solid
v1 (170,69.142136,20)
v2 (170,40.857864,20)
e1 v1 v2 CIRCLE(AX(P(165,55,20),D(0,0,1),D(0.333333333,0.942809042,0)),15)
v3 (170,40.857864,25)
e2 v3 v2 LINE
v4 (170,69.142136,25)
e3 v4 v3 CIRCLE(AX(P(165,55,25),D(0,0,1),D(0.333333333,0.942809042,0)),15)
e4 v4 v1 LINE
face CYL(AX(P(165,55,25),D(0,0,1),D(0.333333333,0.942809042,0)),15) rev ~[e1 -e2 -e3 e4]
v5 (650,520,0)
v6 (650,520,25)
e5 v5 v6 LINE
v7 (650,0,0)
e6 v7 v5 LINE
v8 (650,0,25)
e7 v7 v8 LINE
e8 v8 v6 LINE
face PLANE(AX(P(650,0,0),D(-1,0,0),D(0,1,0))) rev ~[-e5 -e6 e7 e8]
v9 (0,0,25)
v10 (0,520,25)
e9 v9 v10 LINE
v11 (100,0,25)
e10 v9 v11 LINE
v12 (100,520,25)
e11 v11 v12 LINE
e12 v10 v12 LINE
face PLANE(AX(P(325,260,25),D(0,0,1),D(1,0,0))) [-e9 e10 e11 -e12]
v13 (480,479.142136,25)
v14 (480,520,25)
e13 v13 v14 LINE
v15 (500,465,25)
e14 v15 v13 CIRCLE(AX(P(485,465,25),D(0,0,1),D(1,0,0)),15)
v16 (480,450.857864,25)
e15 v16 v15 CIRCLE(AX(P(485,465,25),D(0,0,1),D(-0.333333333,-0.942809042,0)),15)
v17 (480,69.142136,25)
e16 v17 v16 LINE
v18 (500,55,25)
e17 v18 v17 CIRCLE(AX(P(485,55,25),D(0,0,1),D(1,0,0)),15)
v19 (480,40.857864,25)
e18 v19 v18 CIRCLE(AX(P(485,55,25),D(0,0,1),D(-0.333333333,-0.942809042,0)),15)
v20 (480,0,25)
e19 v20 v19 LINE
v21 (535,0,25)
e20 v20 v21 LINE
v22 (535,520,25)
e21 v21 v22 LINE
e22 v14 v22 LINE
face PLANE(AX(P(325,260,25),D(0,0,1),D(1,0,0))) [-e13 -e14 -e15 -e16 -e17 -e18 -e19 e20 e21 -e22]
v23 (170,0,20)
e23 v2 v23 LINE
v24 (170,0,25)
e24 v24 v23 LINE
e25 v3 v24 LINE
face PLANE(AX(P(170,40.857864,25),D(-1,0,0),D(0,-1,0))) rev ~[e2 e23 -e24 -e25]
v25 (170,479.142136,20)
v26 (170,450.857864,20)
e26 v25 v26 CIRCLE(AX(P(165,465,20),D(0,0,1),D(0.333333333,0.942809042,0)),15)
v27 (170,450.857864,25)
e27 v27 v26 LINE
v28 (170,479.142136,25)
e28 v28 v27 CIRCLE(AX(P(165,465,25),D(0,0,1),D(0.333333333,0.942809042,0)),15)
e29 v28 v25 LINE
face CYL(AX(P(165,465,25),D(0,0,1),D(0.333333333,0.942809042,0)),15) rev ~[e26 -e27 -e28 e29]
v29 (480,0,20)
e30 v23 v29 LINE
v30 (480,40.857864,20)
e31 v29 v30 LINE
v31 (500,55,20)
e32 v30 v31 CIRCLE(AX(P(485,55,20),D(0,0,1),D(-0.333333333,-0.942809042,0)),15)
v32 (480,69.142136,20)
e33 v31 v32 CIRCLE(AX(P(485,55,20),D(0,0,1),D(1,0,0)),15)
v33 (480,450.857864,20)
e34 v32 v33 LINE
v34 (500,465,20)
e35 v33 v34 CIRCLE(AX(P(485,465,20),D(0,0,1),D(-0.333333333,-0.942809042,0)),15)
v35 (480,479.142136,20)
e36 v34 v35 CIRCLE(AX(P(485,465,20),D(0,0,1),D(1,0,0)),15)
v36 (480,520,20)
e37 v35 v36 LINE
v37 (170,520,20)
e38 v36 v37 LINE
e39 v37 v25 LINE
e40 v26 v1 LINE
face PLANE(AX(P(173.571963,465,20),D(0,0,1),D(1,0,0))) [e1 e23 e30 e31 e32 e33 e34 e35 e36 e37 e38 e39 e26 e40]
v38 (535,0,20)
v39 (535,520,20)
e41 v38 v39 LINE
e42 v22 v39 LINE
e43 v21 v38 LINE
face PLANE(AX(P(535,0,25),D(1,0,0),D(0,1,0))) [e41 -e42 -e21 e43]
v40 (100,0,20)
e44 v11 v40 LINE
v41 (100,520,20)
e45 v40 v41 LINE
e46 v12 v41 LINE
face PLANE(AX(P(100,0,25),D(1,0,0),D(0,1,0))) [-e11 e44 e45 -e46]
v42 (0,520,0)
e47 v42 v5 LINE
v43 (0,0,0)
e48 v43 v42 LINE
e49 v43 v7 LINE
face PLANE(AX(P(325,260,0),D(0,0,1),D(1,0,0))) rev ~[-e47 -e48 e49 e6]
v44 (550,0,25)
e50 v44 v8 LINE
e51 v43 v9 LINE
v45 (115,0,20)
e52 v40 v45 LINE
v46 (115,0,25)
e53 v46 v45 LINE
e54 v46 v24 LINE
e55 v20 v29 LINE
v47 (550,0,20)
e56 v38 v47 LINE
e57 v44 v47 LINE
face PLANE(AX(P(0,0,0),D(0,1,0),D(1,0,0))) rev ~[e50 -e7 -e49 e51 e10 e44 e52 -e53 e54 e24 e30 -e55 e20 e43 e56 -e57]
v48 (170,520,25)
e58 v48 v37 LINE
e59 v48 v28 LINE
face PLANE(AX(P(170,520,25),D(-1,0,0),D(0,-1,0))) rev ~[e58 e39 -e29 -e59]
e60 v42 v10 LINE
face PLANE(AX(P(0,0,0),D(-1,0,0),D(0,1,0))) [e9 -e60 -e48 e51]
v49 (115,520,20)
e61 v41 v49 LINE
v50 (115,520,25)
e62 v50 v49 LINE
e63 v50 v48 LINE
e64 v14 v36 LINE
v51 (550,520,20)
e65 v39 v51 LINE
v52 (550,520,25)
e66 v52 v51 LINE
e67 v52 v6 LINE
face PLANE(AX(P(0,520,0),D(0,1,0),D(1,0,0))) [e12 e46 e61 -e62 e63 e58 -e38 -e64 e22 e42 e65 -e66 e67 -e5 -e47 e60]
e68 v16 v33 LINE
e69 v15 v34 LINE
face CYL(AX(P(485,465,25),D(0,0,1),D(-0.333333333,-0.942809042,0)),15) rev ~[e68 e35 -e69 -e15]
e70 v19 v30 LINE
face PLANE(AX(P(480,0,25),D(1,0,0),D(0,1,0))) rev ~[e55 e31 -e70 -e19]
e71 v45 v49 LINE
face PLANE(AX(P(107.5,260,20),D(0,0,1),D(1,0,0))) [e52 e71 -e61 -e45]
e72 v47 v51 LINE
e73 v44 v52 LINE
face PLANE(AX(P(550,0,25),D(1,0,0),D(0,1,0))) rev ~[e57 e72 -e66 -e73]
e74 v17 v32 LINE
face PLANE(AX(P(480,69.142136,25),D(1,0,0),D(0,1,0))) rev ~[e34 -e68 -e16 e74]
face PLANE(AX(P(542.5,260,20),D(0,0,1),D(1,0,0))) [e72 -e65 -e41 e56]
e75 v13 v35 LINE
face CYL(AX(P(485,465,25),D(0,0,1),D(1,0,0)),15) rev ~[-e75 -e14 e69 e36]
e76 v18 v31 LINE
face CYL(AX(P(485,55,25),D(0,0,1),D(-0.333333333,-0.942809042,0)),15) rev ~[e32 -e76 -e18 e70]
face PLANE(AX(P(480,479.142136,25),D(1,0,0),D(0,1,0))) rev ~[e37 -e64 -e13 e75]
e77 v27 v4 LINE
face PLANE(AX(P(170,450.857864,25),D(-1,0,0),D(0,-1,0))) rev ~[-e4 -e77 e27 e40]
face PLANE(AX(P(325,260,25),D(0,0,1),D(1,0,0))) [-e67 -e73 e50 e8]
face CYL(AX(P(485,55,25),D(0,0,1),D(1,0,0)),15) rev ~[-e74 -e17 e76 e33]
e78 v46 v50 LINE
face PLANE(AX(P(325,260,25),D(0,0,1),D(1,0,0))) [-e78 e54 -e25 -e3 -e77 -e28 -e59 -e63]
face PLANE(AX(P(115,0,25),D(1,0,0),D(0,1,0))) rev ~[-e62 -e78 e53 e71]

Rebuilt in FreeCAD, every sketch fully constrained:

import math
import FreeCAD as App
import Part
import Sketcher
Q = App.Units.Quantity

doc = App.newDocument("Part")
body = doc.addObject("PartDesign::Body", "Body")

sketch1 = doc.addObject("Sketcher::SketchObject", "Sketch")
body.addObject(sketch1)
sketch1.AttachmentSupport = (doc.XY_Plane, [""])
sketch1.MapMode = "FlatFace"
sketch1.addGeometry(Part.LineSegment(App.Vector(0, 520, 0), App.Vector(0, 0, 0)), False)
sketch1.addGeometry(Part.LineSegment(App.Vector(0, 0, 0), App.Vector(650, 0, 0)), False)
sketch1.addGeometry(Part.LineSegment(App.Vector(650, 0, 0), App.Vector(650, 520, 0)), False)
sketch1.addGeometry(Part.LineSegment(App.Vector(650, 520, 0), App.Vector(0, 520, 0)), False)
sketch1.addConstraint(Sketcher.Constraint("Coincident", 0, 2, 1, 1))
sketch1.addConstraint(Sketcher.Constraint("Coincident", 1, 2, 2, 1))
sketch1.addConstraint(Sketcher.Constraint("Coincident", 2, 2, 3, 1))
sketch1.addConstraint(Sketcher.Constraint("Coincident", 3, 2, 0, 1))
sketch1.addConstraint(Sketcher.Constraint("Vertical", 0))
sketch1.addConstraint(Sketcher.Constraint("Horizontal", 1))
sketch1.addConstraint(Sketcher.Constraint("Vertical", 2))
sketch1.addConstraint(Sketcher.Constraint("Horizontal", 3))
sketch1.addConstraint(Sketcher.Constraint("Coincident", 0, 2, -1, 1))
sketch1.addConstraint(Sketcher.Constraint("DistanceX", 1, 1, 1, 2, Q("650 mm")))
sketch1.addConstraint(Sketcher.Constraint("DistanceY", 0, 2, 0, 1, Q("520 mm")))
pad1 = doc.addObject("PartDesign::Pad", "Pad")
body.addObject(pad1)
pad1.Profile = sketch1
pad1.Length = 25

sketch2 = doc.addObject("Sketcher::SketchObject", "Sketch001")
body.addObject(sketch2)
sketch2.AttachmentSupport = (doc.XY_Plane, [""])
sketch2.MapMode = "FlatFace"
sketch2.AttachmentOffset = App.Placement(App.Vector(0, 0, 25), App.Rotation())
sketch2.addGeometry(Part.LineSegment(App.Vector(100, 520, 0), App.Vector(100, 0, 0)), False)
sketch2.addGeometry(Part.LineSegment(App.Vector(100, 0, 0), App.Vector(115, 0, 0)), False)
sketch2.addGeometry(Part.LineSegment(App.Vector(115, 0, 0), App.Vector(115, 520, 0)), False)
sketch2.addGeometry(Part.LineSegment(App.Vector(115, 520, 0), App.Vector(100, 520, 0)), False)
sketch2.addGeometry(Part.LineSegment(App.Vector(535, 520, 0), App.Vector(535, 0, 0)), False)
sketch2.addGeometry(Part.LineSegment(App.Vector(535, 0, 0), App.Vector(550, 0, 0)), False)
sketch2.addGeometry(Part.LineSegment(App.Vector(550, 0, 0), App.Vector(550, 520, 0)), False)
sketch2.addGeometry(Part.LineSegment(App.Vector(550, 520, 0), App.Vector(535, 520, 0)), False)
sketch2.addGeometry(Part.LineSegment(App.Vector(170, 40.857864, 0), App.Vector(170, 0, 0)), False)
sketch2.addGeometry(Part.LineSegment(App.Vector(170, 0, 0), App.Vector(480, 0, 0)), False)
sketch2.addGeometry(Part.LineSegment(App.Vector(480, 0, 0), App.Vector(480, 40.857864, 0)), False)
sketch2.addGeometry(Part.ArcOfCircle(Part.Circle(App.Vector(485, 55, 0), App.Vector(0, 0, 1), 15), math.radians(-109.471221), math.radians(0)), False)
sketch2.addGeometry(Part.ArcOfCircle(Part.Circle(App.Vector(485, 55, 0), App.Vector(0, 0, 1), 15), math.radians(0), math.radians(109.471221)), False)
sketch2.addGeometry(Part.LineSegment(App.Vector(480, 69.142136, 0), App.Vector(480, 450.857864, 0)), False)
sketch2.addGeometry(Part.ArcOfCircle(Part.Circle(App.Vector(485, 465, 0), App.Vector(0, 0, 1), 15), math.radians(-109.471221), math.radians(0)), False)
sketch2.addGeometry(Part.ArcOfCircle(Part.Circle(App.Vector(485, 465, 0), App.Vector(0, 0, 1), 15), math.radians(0), math.radians(109.471221)), False)
sketch2.addGeometry(Part.LineSegment(App.Vector(480, 479.142136, 0), App.Vector(480, 520, 0)), False)
sketch2.addGeometry(Part.LineSegment(App.Vector(480, 520, 0), App.Vector(170, 520, 0)), False)
sketch2.addGeometry(Part.LineSegment(App.Vector(170, 520, 0), App.Vector(170, 479.142136, 0)), False)
sketch2.addGeometry(Part.ArcOfCircle(Part.Circle(App.Vector(165, 465, 0), App.Vector(0, 0, 1), 15), math.radians(70.528779), math.radians(289.471221)), False)
sketch2.addGeometry(Part.LineSegment(App.Vector(170, 450.857864, 0), App.Vector(170, 69.142136, 0)), False)
sketch2.addGeometry(Part.ArcOfCircle(Part.Circle(App.Vector(165, 55, 0), App.Vector(0, 0, 1), 15), math.radians(70.528779), math.radians(289.471221)), False)
sketch2.addConstraint(Sketcher.Constraint("Coincident", 0, 2, 1, 1))
sketch2.addConstraint(Sketcher.Constraint("Coincident", 1, 2, 2, 1))
sketch2.addConstraint(Sketcher.Constraint("Coincident", 2, 2, 3, 1))
sketch2.addConstraint(Sketcher.Constraint("Coincident", 3, 2, 0, 1))
sketch2.addConstraint(Sketcher.Constraint("Coincident", 4, 2, 5, 1))
sketch2.addConstraint(Sketcher.Constraint("Coincident", 5, 2, 6, 1))
sketch2.addConstraint(Sketcher.Constraint("Coincident", 6, 2, 7, 1))
sketch2.addConstraint(Sketcher.Constraint("Coincident", 7, 2, 4, 1))
sketch2.addConstraint(Sketcher.Constraint("Coincident", 8, 2, 9, 1))
sketch2.addConstraint(Sketcher.Constraint("Coincident", 9, 2, 10, 1))
sketch2.addConstraint(Sketcher.Constraint("Coincident", 10, 2, 11, 1))
sketch2.addConstraint(Sketcher.Constraint("Tangent", 11, 2, 12, 1))
sketch2.addConstraint(Sketcher.Constraint("Coincident", 12, 2, 13, 1))
sketch2.addConstraint(Sketcher.Constraint("Coincident", 13, 2, 14, 1))
sketch2.addConstraint(Sketcher.Constraint("Tangent", 14, 2, 15, 1))
sketch2.addConstraint(Sketcher.Constraint("Coincident", 15, 2, 16, 1))
sketch2.addConstraint(Sketcher.Constraint("Coincident", 16, 2, 17, 1))
sketch2.addConstraint(Sketcher.Constraint("Coincident", 17, 2, 18, 1))
sketch2.addConstraint(Sketcher.Constraint("Coincident", 18, 2, 19, 1))
sketch2.addConstraint(Sketcher.Constraint("Coincident", 19, 2, 20, 1))
sketch2.addConstraint(Sketcher.Constraint("Coincident", 20, 2, 21, 1))
sketch2.addConstraint(Sketcher.Constraint("Coincident", 21, 2, 8, 1))
sketch2.addConstraint(Sketcher.Constraint("Vertical", 0))
sketch2.addConstraint(Sketcher.Constraint("Horizontal", 1))
sketch2.addConstraint(Sketcher.Constraint("Vertical", 2))
sketch2.addConstraint(Sketcher.Constraint("Horizontal", 3))
sketch2.addConstraint(Sketcher.Constraint("Vertical", 4))
sketch2.addConstraint(Sketcher.Constraint("Horizontal", 5))
sketch2.addConstraint(Sketcher.Constraint("Vertical", 6))
sketch2.addConstraint(Sketcher.Constraint("Horizontal", 7))
sketch2.addConstraint(Sketcher.Constraint("Vertical", 8))
sketch2.addConstraint(Sketcher.Constraint("Horizontal", 9))
sketch2.addConstraint(Sketcher.Constraint("Vertical", 10))
sketch2.addConstraint(Sketcher.Constraint("Vertical", 13))
sketch2.addConstraint(Sketcher.Constraint("Vertical", 16))
sketch2.addConstraint(Sketcher.Constraint("Horizontal", 17))
sketch2.addConstraint(Sketcher.Constraint("Vertical", 18))
sketch2.addConstraint(Sketcher.Constraint("Vertical", 20))
sketch2.addConstraint(Sketcher.Constraint("Equal", 11, 12))
sketch2.addConstraint(Sketcher.Constraint("Equal", 12, 14))
sketch2.addConstraint(Sketcher.Constraint("Equal", 14, 15))
sketch2.addConstraint(Sketcher.Constraint("Equal", 15, 19))
sketch2.addConstraint(Sketcher.Constraint("Equal", 19, 21))
sketch2.addConstraint(Sketcher.Constraint("PointOnObject", 0, 2, -1))
sketch2.addConstraint(Sketcher.Constraint("PointOnObject", 4, 2, -1))
sketch2.addConstraint(Sketcher.Constraint("PointOnObject", 8, 2, -1))
sketch2.addConstraint(Sketcher.Constraint("Horizontal", 15, 3, 19, 3))
sketch2.addConstraint(Sketcher.Constraint("Horizontal", 12, 3, 21, 3))
sketch2.addConstraint(Sketcher.Constraint("Horizontal", 3, 2, 6, 2))
sketch2.addConstraint(Sketcher.Constraint("Horizontal", 21, 3, 11, 2))
sketch2.addConstraint(Sketcher.Constraint("Horizontal", 19, 3, 14, 2))
sketch2.addConstraint(Sketcher.Constraint("Horizontal", 7, 2, 16, 2))
sketch2.addConstraint(Sketcher.Constraint("Horizontal", 15, 2, 18, 2))
sketch2.addConstraint(Sketcher.Constraint("Horizontal", 13, 2, 19, 2))
sketch2.addConstraint(Sketcher.Constraint("Horizontal", 12, 2, 20, 2))
sketch2.addConstraint(Sketcher.Constraint("Horizontal", 10, 2, 21, 2))
sketch2.addConstraint(Sketcher.Constraint("Vertical", 12, 3, 14, 3))
sketch2.addConstraint(Sketcher.Constraint("Vertical", 10, 2, 12, 2))
sketch2.addConstraint(Sketcher.Constraint("Vertical", 13, 2, 15, 2))
sketch2.addConstraint(Sketcher.Constraint("Equal", 3, 5))
sketch2.addConstraint(Sketcher.Constraint("Equal", 10, 16))
sketch2.addConstraint(Sketcher.Constraint("Radius", 11, Q("15 mm")))
sketch2.addConstraint(Sketcher.Constraint("DistanceX", 1, 1, 1, 2, Q("15 mm")))
sketch2.addConstraint(Sketcher.Constraint("DistanceX", 9, 1, 9, 2, Q("310 mm")))
sketch2.addConstraint(Sketcher.Constraint("DistanceY", 0, 2, 0, 1, Q("520 mm")))
sketch2.addConstraint(Sketcher.Constraint("DistanceX", -1, 1, 11, 3, Q("485 mm")))
sketch2.addConstraint(Sketcher.Constraint("DistanceY", -1, 1, 11, 3, Q("55 mm")))
sketch2.addConstraint(Sketcher.Constraint("DistanceX", -1, 1, 19, 3, Q("165 mm")))
sketch2.addConstraint(Sketcher.Constraint("DistanceX", -1, 1, 0, 2, Q("100 mm")))
sketch2.addConstraint(Sketcher.Constraint("DistanceX", -1, 1, 4, 2, Q("535 mm")))
pocket1 = doc.addObject("PartDesign::Pocket", "Pocket")
body.addObject(pocket1)
pocket1.Profile = sketch2
pocket1.Length = 5

doc.recompute()
